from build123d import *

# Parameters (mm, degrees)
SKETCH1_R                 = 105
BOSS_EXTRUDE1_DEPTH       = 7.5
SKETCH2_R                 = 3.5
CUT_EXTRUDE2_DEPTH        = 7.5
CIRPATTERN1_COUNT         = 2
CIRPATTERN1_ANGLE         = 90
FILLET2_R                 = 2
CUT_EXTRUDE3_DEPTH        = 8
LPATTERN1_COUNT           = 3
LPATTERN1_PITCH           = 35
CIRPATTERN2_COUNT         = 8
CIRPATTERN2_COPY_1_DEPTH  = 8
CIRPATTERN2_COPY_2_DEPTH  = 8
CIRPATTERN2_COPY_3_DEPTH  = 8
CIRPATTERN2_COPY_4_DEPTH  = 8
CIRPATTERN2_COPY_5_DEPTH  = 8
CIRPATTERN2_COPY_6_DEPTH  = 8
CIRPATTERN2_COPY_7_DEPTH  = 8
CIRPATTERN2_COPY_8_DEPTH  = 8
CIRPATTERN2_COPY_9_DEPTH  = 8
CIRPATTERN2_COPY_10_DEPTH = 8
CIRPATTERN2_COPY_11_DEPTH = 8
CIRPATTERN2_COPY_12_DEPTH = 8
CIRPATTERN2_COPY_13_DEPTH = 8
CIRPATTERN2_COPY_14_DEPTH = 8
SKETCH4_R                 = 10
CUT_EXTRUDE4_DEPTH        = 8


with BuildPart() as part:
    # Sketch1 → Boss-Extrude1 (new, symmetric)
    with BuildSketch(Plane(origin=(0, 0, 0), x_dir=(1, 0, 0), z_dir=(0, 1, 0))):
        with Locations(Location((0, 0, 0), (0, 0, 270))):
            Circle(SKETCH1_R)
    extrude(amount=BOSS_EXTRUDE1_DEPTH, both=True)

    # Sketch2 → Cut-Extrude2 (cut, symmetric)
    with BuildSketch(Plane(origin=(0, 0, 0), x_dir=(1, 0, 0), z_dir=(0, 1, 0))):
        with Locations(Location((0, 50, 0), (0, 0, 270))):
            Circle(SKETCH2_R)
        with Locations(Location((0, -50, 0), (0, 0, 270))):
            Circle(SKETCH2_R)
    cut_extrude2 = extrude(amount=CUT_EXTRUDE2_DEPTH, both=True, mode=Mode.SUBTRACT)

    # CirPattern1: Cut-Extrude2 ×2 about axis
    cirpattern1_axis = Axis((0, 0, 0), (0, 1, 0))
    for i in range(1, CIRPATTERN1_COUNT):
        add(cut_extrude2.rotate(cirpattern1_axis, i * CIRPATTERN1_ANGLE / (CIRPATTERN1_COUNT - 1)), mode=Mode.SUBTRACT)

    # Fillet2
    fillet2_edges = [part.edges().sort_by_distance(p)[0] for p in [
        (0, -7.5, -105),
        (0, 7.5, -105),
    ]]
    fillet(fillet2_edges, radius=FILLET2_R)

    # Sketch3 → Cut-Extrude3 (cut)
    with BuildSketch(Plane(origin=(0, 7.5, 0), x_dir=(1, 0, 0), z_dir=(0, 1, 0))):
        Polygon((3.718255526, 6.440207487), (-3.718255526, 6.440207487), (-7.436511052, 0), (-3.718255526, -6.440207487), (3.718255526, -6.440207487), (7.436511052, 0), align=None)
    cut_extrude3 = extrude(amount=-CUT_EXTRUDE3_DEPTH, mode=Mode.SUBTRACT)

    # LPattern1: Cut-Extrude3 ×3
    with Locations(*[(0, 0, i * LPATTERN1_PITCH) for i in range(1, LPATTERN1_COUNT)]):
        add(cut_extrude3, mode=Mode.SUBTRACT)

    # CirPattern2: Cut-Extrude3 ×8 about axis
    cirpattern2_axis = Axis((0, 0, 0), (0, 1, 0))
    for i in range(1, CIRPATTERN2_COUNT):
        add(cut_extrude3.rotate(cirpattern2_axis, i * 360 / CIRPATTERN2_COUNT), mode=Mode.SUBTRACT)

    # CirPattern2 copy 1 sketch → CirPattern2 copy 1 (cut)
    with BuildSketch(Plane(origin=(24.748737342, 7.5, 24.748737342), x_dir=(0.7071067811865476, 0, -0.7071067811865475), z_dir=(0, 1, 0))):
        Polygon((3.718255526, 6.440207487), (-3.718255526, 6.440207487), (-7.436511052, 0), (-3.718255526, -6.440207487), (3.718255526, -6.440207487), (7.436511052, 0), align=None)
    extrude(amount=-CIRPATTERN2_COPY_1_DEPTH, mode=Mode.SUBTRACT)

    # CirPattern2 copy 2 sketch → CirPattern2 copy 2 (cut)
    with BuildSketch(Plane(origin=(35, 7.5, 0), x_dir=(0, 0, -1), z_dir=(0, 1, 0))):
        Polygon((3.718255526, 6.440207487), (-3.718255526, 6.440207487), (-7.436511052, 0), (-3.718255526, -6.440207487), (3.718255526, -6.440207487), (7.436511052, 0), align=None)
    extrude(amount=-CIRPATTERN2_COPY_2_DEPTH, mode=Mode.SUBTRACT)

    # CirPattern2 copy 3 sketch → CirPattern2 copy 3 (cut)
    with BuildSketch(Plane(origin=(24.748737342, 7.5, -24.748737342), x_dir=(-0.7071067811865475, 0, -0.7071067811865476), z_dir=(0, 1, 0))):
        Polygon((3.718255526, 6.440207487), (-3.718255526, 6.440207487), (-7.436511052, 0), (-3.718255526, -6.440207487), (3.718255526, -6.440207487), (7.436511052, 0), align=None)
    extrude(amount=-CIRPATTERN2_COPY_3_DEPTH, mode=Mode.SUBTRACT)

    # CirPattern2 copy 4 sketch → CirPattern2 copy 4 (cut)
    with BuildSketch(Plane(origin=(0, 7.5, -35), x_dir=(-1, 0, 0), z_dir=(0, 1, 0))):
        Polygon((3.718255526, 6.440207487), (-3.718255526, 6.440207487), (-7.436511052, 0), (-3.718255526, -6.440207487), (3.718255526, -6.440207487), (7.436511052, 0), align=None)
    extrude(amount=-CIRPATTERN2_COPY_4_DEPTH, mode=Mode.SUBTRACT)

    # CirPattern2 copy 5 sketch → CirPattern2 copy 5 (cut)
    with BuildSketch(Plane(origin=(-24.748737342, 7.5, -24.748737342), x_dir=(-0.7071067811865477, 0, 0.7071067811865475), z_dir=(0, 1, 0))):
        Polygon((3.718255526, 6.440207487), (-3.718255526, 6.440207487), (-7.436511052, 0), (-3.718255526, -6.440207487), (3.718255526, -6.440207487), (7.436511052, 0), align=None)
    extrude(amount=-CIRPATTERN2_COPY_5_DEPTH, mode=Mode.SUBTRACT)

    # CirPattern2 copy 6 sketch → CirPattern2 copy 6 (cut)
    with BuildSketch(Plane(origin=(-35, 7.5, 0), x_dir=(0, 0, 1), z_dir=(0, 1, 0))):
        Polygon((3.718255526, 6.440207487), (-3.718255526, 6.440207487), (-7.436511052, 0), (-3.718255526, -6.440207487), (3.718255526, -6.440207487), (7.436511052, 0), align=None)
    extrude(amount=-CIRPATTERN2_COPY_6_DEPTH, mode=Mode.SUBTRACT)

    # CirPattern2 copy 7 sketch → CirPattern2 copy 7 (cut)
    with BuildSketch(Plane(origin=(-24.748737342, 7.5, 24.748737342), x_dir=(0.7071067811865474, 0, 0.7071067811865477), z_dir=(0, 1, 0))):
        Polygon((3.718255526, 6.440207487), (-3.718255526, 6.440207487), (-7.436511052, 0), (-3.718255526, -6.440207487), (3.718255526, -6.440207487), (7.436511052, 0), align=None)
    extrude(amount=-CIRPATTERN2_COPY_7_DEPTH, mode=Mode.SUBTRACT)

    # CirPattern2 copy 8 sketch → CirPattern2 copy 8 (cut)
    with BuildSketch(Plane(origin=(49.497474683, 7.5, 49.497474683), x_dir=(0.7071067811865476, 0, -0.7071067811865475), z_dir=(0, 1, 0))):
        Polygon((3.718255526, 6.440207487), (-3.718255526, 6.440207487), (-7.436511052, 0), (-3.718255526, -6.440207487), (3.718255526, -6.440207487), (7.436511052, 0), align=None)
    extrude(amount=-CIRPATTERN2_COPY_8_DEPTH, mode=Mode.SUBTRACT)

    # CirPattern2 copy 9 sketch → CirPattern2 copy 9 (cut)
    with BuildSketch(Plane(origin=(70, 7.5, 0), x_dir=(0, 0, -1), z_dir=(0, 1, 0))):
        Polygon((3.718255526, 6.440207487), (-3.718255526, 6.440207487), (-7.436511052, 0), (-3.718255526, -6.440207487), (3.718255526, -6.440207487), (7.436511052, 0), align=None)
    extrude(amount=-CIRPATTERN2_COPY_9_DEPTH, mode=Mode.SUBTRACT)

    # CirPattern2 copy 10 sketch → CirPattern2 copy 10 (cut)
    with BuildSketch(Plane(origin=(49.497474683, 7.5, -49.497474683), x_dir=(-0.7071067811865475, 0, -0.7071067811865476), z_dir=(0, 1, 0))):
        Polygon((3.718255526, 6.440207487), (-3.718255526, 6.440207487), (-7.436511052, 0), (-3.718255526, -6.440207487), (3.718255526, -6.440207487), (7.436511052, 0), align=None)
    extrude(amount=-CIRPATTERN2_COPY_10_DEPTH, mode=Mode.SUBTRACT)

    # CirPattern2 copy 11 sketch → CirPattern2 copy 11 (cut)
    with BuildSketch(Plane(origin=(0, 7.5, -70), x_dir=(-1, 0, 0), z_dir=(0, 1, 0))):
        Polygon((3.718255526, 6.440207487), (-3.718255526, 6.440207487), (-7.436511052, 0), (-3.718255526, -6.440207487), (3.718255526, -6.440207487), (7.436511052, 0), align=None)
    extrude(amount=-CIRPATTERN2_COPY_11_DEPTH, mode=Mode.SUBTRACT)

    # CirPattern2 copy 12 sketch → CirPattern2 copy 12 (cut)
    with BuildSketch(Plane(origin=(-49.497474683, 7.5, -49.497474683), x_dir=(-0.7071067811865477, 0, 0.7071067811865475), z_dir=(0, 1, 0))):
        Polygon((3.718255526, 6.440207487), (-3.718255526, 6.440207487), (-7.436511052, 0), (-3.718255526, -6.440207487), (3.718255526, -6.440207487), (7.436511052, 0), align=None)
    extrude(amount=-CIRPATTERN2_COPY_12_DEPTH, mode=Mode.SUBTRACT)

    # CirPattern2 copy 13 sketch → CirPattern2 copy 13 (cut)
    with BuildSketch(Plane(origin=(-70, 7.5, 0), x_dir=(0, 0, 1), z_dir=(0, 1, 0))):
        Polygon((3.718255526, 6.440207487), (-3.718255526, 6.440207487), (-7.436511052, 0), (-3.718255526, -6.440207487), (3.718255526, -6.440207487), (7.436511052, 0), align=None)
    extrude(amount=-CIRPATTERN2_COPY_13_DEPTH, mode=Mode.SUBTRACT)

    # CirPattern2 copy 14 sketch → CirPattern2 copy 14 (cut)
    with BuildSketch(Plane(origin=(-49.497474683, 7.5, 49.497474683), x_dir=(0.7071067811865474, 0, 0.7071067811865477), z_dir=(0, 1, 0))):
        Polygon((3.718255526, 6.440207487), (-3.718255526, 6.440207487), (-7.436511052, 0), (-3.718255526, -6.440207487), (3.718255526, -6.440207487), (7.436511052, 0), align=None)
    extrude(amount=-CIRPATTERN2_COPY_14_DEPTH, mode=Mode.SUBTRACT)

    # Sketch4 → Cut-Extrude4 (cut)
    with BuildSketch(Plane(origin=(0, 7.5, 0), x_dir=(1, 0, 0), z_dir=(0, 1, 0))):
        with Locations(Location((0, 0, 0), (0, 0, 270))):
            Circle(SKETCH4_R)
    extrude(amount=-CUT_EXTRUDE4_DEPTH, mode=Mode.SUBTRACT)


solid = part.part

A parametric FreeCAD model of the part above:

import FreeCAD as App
import Part
import Sketcher
Q = App.Units.Quantity


def edges_at(feature, points):
    """Names of the edges that pass closest to the given points."""
    edges = feature.Shape.Edges
    near = lambda p: min(range(len(edges)), key=lambda i: edges[i].distToShape(Part.Vertex(*p))[0])
    return sorted({f"Edge{near(p) + 1}" for p in points})


def add_polygon(sketch, points):
    """Adds a closed chain of lines whose ends are joined by coincident constraints."""
    first, n = sketch.GeometryCount, len(points)
    for a, b in zip(points, points[1:] + points[:1]):
        sketch.addGeometry(Part.LineSegment(App.Vector(*a, 0), App.Vector(*b, 0)), False)
    for i in range(n):
        sketch.addConstraint(Sketcher.Constraint("Coincident", first + i, 2, first + (i + 1) % n, 1))

doc = App.newDocument("Part")
body = doc.addObject("PartDesign::Body", "Body")

# Sketch on XZ plane
sketch1 = doc.addObject("Sketcher::SketchObject", "Sketch")
body.addObject(sketch1)
sketch1.AttachmentSupport = (doc.XZ_Plane, [""])
sketch1.MapMode = "FlatFace"
sketch1.addGeometry(Part.Circle(App.Vector(0, 0, 0), App.Vector(0, 0, 1), 105), False)
sketch1.addConstraint(Sketcher.Constraint("Coincident", 0, 3, -1, 1))
sketch1.addConstraint(Sketcher.Constraint("Diameter", 0, Q("210 mm")))
pad1 = doc.addObject("PartDesign::Pad", "Pad")
body.addObject(pad1)
pad1.Profile = sketch1
pad1.Length = 15
pad1.Midplane = True

# Sketch on XZ plane
sketch2 = doc.addObject("Sketcher::SketchObject", "Sketch001")
body.addObject(sketch2)
sketch2.AttachmentSupport = (doc.XZ_Plane, [""])
sketch2.MapMode = "FlatFace"
sketch2.addGeometry(Part.Circle(App.Vector(0, -50, 0), App.Vector(0, 0, 1), 3.5), False)
sketch2.addGeometry(Part.Circle(App.Vector(0, 50, 0), App.Vector(0, 0, 1), 3.5), False)
sketch2.addConstraint(Sketcher.Constraint("Equal", 0, 1))
sketch2.addConstraint(Sketcher.Constraint("Symmetric", 0, 3, 1, 3, -1, 1))
sketch2.addConstraint(Sketcher.Constraint("PointOnObject", 0, 3, -2))
sketch2.addConstraint(Sketcher.Constraint("Diameter", 0, Q("7 mm")))
sketch2.addConstraint(Sketcher.Constraint("DistanceY", 0, 3, -1, 1, Q("50 mm")))
pocket1 = doc.addObject("PartDesign::Pocket", "Pocket")
body.addObject(pocket1)
pocket1.Profile = sketch2
pocket1.Length = 15
pocket1.Midplane = True
doc.recompute()

polarpattern = doc.addObject("PartDesign::PolarPattern", "PolarPattern")
body.addObject(polarpattern)
polarpattern.Originals = [pocket1]
polarpattern.Axis = (doc.Y_Axis, [""])
polarpattern.Angle = 90
polarpattern.Occurrences = 2
body.Tip = polarpattern
doc.recompute()

fillet = doc.addObject("PartDesign::Fillet", "Fillet")
body.addObject(fillet)
fillet.Base = (polarpattern, edges_at(polarpattern, [(0, -7.5, -105), (0, 7.5, -105)]))
fillet.Radius = 2

# Sketch on XZ plane
sketch3 = doc.addObject("Sketcher::SketchObject", "Sketch002")
body.addObject(sketch3)
sketch3.AttachmentSupport = (doc.XZ_Plane, [""])
sketch3.MapMode = "FlatFace"
sketch3.AttachmentOffset = App.Placement(App.Vector(0, 0, -7.5), App.Rotation())
add_polygon(sketch3, [(4, -6), (-4, -6), (-7, 0), (-4, 6), (4, 6), (7, 0)])  # lines 0-5
sketch3.addConstraint(Sketcher.Constraint("Horizontal", 0))
sketch3.addConstraint(Sketcher.Constraint("Horizontal", 3))
sketch3.addConstraint(Sketcher.Constraint("Symmetric", 0, 2, 3, 2, -1, 1))
sketch3.addConstraint(Sketcher.Constraint("Symmetric", 1, 2, 4, 2, -1, 1))
sketch3.addConstraint(Sketcher.Constraint("PointOnObject", 1, 2, -1))
sketch3.addConstraint(Sketcher.Constraint("Parallel", 2, 5))
sketch3.addConstraint(Sketcher.Constraint("Vertical", 0, 2, 2, 2))
sketch3.addConstraint(Sketcher.Constraint("Angle", 1, Q("120 deg")))
sketch3.addConstraint(Sketcher.Constraint("DistanceX", 0, 2, 0, 1, Q("7.436511 mm")))
sketch3.addConstraint(Sketcher.Constraint("Distance", 1, Q("7.436511 mm")))
pocket2 = doc.addObject("PartDesign::Pocket", "Pocket001")
body.addObject(pocket2)
pocket2.Profile = sketch3
pocket2.Length = 8
pocket2.Reversed = True
doc.recompute()

linearpattern = doc.addObject("PartDesign::LinearPattern", "LinearPattern")
body.addObject(linearpattern)
linearpattern.Originals = [pocket2]
linearpattern.Direction = (doc.Z_Axis, [""])
linearpattern.Mode = "offset"
linearpattern.Offset = 35
linearpattern.Occurrences = 3
body.Tip = linearpattern
doc.recompute()

polarpattern2 = doc.addObject("PartDesign::PolarPattern", "PolarPattern001")
body.addObject(polarpattern2)
polarpattern2.Originals = [pocket2]
polarpattern2.Axis = (doc.Y_Axis, [""])
polarpattern2.Angle = 360
polarpattern2.Occurrences = 8
body.Tip = polarpattern2

# Sketch on XZ plane
sketch4 = doc.addObject("Sketcher::SketchObject", "Sketch003")
body.addObject(sketch4)
sketch4.AttachmentSupport = (doc.XZ_Plane, [""])
sketch4.MapMode = "FlatFace"
sketch4.AttachmentOffset = App.Placement(App.Vector(0, 0, -7.5), App.Rotation())
add_polygon(sketch4, [(23, 18), (18, 23), (19, 30), (27, 32), (32, 27), (30, 19)])  # lines 0-5
sketch4.addConstraint(Sketcher.Constraint("Parallel", 0, 3))
sketch4.addConstraint(Sketcher.Constraint("Parallel", 1, 4))
sketch4.addConstraint(Sketcher.Constraint("Parallel", 2, 5))
sketch4.addConstraint(Sketcher.Constraint("Equal", 0, 1))
sketch4.addConstraint(Sketcher.Constraint("Equal", 1, 2))
sketch4.addConstraint(Sketcher.Constraint("Equal", 2, 3))
sketch4.addConstraint(Sketcher.Constraint("Angle", 0, Q("135 deg")))
sketch4.addConstraint(Sketcher.Constraint("Angle", 1, Q("75 deg")))
sketch4.addConstraint(Sketcher.Constraint("Angle", 2, Q("15 deg")))
sketch4.addConstraint(Sketcher.Constraint("Distance", 0, Q("7.436511 mm")))
sketch4.addConstraint(Sketcher.Constraint("DistanceX", -1, 1, 0, 2, Q("17.565619 mm")))
sketch4.addConstraint(Sketcher.Constraint("DistanceY", -1, 1, 3, 2, Q("26.673448 mm")))
pocket3 = doc.addObject("PartDesign::Pocket", "Pocket002")
body.addObject(pocket3)
pocket3.Profile = sketch4
pocket3.Length = 8
pocket3.Reversed = True

# Sketch on XZ plane
sketch5 = doc.addObject("Sketcher::SketchObject", "Sketch004")
body.addObject(sketch5)
sketch5.AttachmentSupport = (doc.XZ_Plane, [""])
sketch5.MapMode = "FlatFace"
sketch5.AttachmentOffset = App.Placement(App.Vector(0, 0, -7.5), App.Rotation())
add_polygon(sketch5, [(29, -4), (29, 4), (35, 7), (41, 4), (41, -4), (35, -7)])  # lines 0-5
sketch5.addConstraint(Sketcher.Constraint("Vertical", 0))
sketch5.addConstraint(Sketcher.Constraint("Vertical", 3))
sketch5.addConstraint(Sketcher.Constraint("Symmetric", 1, 2, 4, 2, -1))
sketch5.addConstraint(Sketcher.Constraint("Parallel", 1, 4))
sketch5.addConstraint(Sketcher.Constraint("Parallel", 2, 5))
sketch5.addConstraint(Sketcher.Constraint("Horizontal", 0, 2, 2, 2))
sketch5.addConstraint(Sketcher.Constraint("Horizontal", 3, 2, 5, 2))
sketch5.addConstraint(Sketcher.Constraint("Angle", 1, Q("30 deg")))
sketch5.addConstraint(Sketcher.Constraint("DistanceX", -1, 1, 1, 2, Q("35 mm")))
sketch5.addConstraint(Sketcher.Constraint("DistanceY", 0, 1, 0, 2, Q("7.436511 mm")))
sketch5.addConstraint(Sketcher.Constraint("Distance", 1, Q("7.436511 mm")))
pocket4 = doc.addObject("PartDesign::Pocket", "Pocket003")
body.addObject(pocket4)
pocket4.Profile = sketch5
pocket4.Length = 8
pocket4.Reversed = True

# Sketch on XZ plane
sketch6 = doc.addObject("Sketcher::SketchObject", "Sketch005")
body.addObject(sketch6)
sketch6.AttachmentSupport = (doc.XZ_Plane, [""])
sketch6.MapMode = "FlatFace"
sketch6.AttachmentOffset = App.Placement(App.Vector(0, 0, -7.5), App.Rotation())
add_polygon(sketch6, [(18, -23), (23, -18), (30, -19), (32, -27), (27, -32), (19, -30)])  # lines 0-5
sketch6.addConstraint(Sketcher.Constraint("Parallel", 0, 3))
sketch6.addConstraint(Sketcher.Constraint("Parallel", 1, 4))
sketch6.addConstraint(Sketcher.Constraint("Parallel", 2, 5))
sketch6.addConstraint(Sketcher.Constraint("Equal", 0, 1))
sketch6.addConstraint(Sketcher.Constraint("Equal", 1, 2))
sketch6.addConstraint(Sketcher.Constraint("Equal", 2, 3))
sketch6.addConstraint(Sketcher.Constraint("Angle", 0, Q("45 deg")))
sketch6.addConstraint(Sketcher.Constraint("Angle", 1, Q("-15 deg")))
sketch6.addConstraint(Sketcher.Constraint("Angle", 2, Q("-75 deg")))
sketch6.addConstraint(Sketcher.Constraint("Distance", 0, Q("7.436511 mm")))
sketch6.addConstraint(Sketcher.Constraint("DistanceY", 0, 2, -1, 1, Q("17.565619 mm")))
sketch6.addConstraint(Sketcher.Constraint("DistanceX", -1, 1, 3, 2, Q("26.673448 mm")))
pocket5 = doc.addObject("PartDesign::Pocket", "Pocket004")
body.addObject(pocket5)
pocket5.Profile = sketch6
pocket5.Length = 8
pocket5.Reversed = True

# Sketch on XZ plane
sketch7 = doc.addObject("Sketcher::SketchObject", "Sketch006")
body.addObject(sketch7)
sketch7.AttachmentSupport = (doc.XZ_Plane, [""])
sketch7.MapMode = "FlatFace"
sketch7.AttachmentOffset = App.Placement(App.Vector(0, 0, -7.5), App.Rotation())
add_polygon(sketch7, [(-4, -29), (4, -29), (7, -35), (4, -41), (-4, -41), (-7, -35)])  # lines 0-5
sketch7.addConstraint(Sketcher.Constraint("Horizontal", 0))
sketch7.addConstraint(Sketcher.Constraint("Horizontal", 3))
sketch7.addConstraint(Sketcher.Constraint("Symmetric", 1, 2, 4, 2, -2))
sketch7.addConstraint(Sketcher.Constraint("Parallel", 1, 4))
sketch7.addConstraint(Sketcher.Constraint("Parallel", 2, 5))
sketch7.addConstraint(Sketcher.Constraint("Vertical", 0, 2, 2, 2))
sketch7.addConstraint(Sketcher.Constraint("Vertical", 3, 2, 5, 2))
sketch7.addConstraint(Sketcher.Constraint("Angle", 1, Q("-60 deg")))
sketch7.addConstraint(Sketcher.Constraint("DistanceY", 1, 2, -1, 1, Q("35 mm")))
sketch7.addConstraint(Sketcher.Constraint("DistanceX", 0, 1, 0, 2, Q("7.436511 mm")))
sketch7.addConstraint(Sketcher.Constraint("Distance", 1, Q("7.436511 mm")))
pocket6 = doc.addObject("PartDesign::Pocket", "Pocket005")
body.addObject(pocket6)
pocket6.Profile = sketch7
pocket6.Length = 8
pocket6.Reversed = True

# Sketch on XZ plane
sketch8 = doc.addObject("Sketcher::SketchObject", "Sketch007")
body.addObject(sketch8)
sketch8.AttachmentSupport = (doc.XZ_Plane, [""])
sketch8.MapMode = "FlatFace"
sketch8.AttachmentOffset = App.Placement(App.Vector(0, 0, -7.5), App.Rotation())
add_polygon(sketch8, [(-23, -18), (-18, -23), (-19, -30), (-27, -32), (-32, -27), (-30, -19)])  # lines 0-5
sketch8.addConstraint(Sketcher.Constraint("Parallel", 0, 3))
sketch8.addConstraint(Sketcher.Constraint("Parallel", 1, 4))
sketch8.addConstraint(Sketcher.Constraint("Parallel", 2, 5))
sketch8.addConstraint(Sketcher.Constraint("Equal", 0, 1))
sketch8.addConstraint(Sketcher.Constraint("Equal", 1, 2))
sketch8.addConstraint(Sketcher.Constraint("Equal", 2, 3))
sketch8.addConstraint(Sketcher.Constraint("Angle", 0, Q("-45 deg")))
sketch8.addConstraint(Sketcher.Constraint("Angle", 1, Q("-105 deg")))
sketch8.addConstraint(Sketcher.Constraint("Angle", 2, Q("-165 deg")))
sketch8.addConstraint(Sketcher.Constraint("Distance", 0, Q("7.436511 mm")))
sketch8.addConstraint(Sketcher.Constraint("DistanceX", 0, 2, -1, 1, Q("17.565619 mm")))
sketch8.addConstraint(Sketcher.Constraint("DistanceY", 3, 2, -1, 1, Q("26.673448 mm")))
pocket7 = doc.addObject("PartDesign::Pocket", "Pocket006")
body.addObject(pocket7)
pocket7.Profile = sketch8
pocket7.Length = 8
pocket7.Reversed = True

# Sketch on XZ plane
sketch9 = doc.addObject("Sketcher::SketchObject", "Sketch008")
body.addObject(sketch9)
sketch9.AttachmentSupport = (doc.XZ_Plane, [""])
sketch9.MapMode = "FlatFace"
sketch9.AttachmentOffset = App.Placement(App.Vector(0, 0, -7.5), App.Rotation())
add_polygon(sketch9, [(-29, 4), (-29, -4), (-35, -7), (-41, -4), (-41, 4), (-35, 7)])  # lines 0-5
sketch9.addConstraint(Sketcher.Constraint("Vertical", 0))
sketch9.addConstraint(Sketcher.Constraint("Vertical", 3))
sketch9.addConstraint(Sketcher.Constraint("Symmetric", 1, 2, 4, 2, -1))
sketch9.addConstraint(Sketcher.Constraint("Parallel", 1, 4))
sketch9.addConstraint(Sketcher.Constraint("Parallel", 2, 5))
sketch9.addConstraint(Sketcher.Constraint("Horizontal", 0, 2, 2, 2))
sketch9.addConstraint(Sketcher.Constraint("Horizontal", 3, 2, 5, 2))
sketch9.addConstraint(Sketcher.Constraint("Angle", 1, Q("-150 deg")))
sketch9.addConstraint(Sketcher.Constraint("DistanceX", 1, 2, -1, 1, Q("35 mm")))
sketch9.addConstraint(Sketcher.Constraint("DistanceY", 0, 2, 0, 1, Q("7.436511 mm")))
sketch9.addConstraint(Sketcher.Constraint("Distance", 1, Q("7.436511 mm")))
pocket8 = doc.addObject("PartDesign::Pocket", "Pocket007")
body.addObject(pocket8)
pocket8.Profile = sketch9
pocket8.Length = 8
pocket8.Reversed = True

# Sketch on XZ plane
sketch10 = doc.addObject("Sketcher::SketchObject", "Sketch009")
body.addObject(sketch10)
sketch10.AttachmentSupport = (doc.XZ_Plane, [""])
sketch10.MapMode = "FlatFace"
sketch10.AttachmentOffset = App.Placement(App.Vector(0, 0, -7.5), App.Rotation())
add_polygon(sketch10, [(-18, 23), (-23, 18), (-30, 19), (-32, 27), (-27, 32), (-19, 30)])  # lines 0-5
sketch10.addConstraint(Sketcher.Constraint("Parallel", 0, 3))
sketch10.addConstraint(Sketcher.Constraint("Parallel", 1, 4))
sketch10.addConstraint(Sketcher.Constraint("Parallel", 2, 5))
sketch10.addConstraint(Sketcher.Constraint("Equal", 0, 1))
sketch10.addConstraint(Sketcher.Constraint("Equal", 1, 2))
sketch10.addConstraint(Sketcher.Constraint("Equal", 2, 3))
sketch10.addConstraint(Sketcher.Constraint("Angle", 0, Q("-135 deg")))
sketch10.addConstraint(Sketcher.Constraint("Angle", 1, Q("165 deg")))
sketch10.addConstraint(Sketcher.Constraint("Angle", 2, Q("105 deg")))
sketch10.addConstraint(Sketcher.Constraint("Distance", 0, Q("7.436511 mm")))
sketch10.addConstraint(Sketcher.Constraint("DistanceY", -1, 1, 0, 2, Q("17.565619 mm")))
sketch10.addConstraint(Sketcher.Constraint("DistanceX", 3, 2, -1, 1, Q("26.673448 mm")))
pocket9 = doc.addObject("PartDesign::Pocket", "Pocket008")
body.addObject(pocket9)
pocket9.Profile = sketch10
pocket9.Length = 8
pocket9.Reversed = True

# Sketch on XZ plane
sketch11 = doc.addObject("Sketcher::SketchObject", "Sketch010")
body.addObject(sketch11)
sketch11.AttachmentSupport = (doc.XZ_Plane, [""])
sketch11.MapMode = "FlatFace"
sketch11.AttachmentOffset = App.Placement(App.Vector(0, 0, -7.5), App.Rotation())
add_polygon(sketch11, [(48, 42), (42, 48), (44, 55), (51, 57), (57, 51), (55, 44)])  # lines 0-5
sketch11.addConstraint(Sketcher.Constraint("Parallel", 0, 3))
sketch11.addConstraint(Sketcher.Constraint("Parallel", 1, 4))
sketch11.addConstraint(Sketcher.Constraint("Parallel", 2, 5))
sketch11.addConstraint(Sketcher.Constraint("Equal", 0, 1))
sketch11.addConstraint(Sketcher.Constraint("Equal", 1, 2))
sketch11.addConstraint(Sketcher.Constraint("Equal", 2, 3))
sketch11.addConstraint(Sketcher.Constraint("Angle", 0, Q("135 deg")))
sketch11.addConstraint(Sketcher.Constraint("Angle", 1, Q("75 deg")))
sketch11.addConstraint(Sketcher.Constraint("Angle", 2, Q("15 deg")))
sketch11.addConstraint(Sketcher.Constraint("Distance", 0, Q("7.436511 mm")))
sketch11.addConstraint(Sketcher.Constraint("DistanceX", -1, 1, 0, 2, Q("42.314357 mm")))
sketch11.addConstraint(Sketcher.Constraint("DistanceY", -1, 1, 0, 2, Q("47.572764 mm")))
pocket10 = doc.addObject("PartDesign::Pocket", "Pocket009")
body.addObject(pocket10)
pocket10.Profile = sketch11
pocket10.Length = 8
pocket10.Reversed = True

# Sketch on XZ plane
sketch12 = doc.addObject("Sketcher::SketchObject", "Sketch011")
body.addObject(sketch12)
sketch12.AttachmentSupport = (doc.XZ_Plane, [""])
sketch12.MapMode = "FlatFace"
sketch12.AttachmentOffset = App.Placement(App.Vector(0, 0, -7.5), App.Rotation())
add_polygon(sketch12, [(64, -4), (64, 4), (70, 7), (76, 4), (76, -4), (70, -7)])  # lines 0-5
sketch12.addConstraint(Sketcher.Constraint("Vertical", 0))
sketch12.addConstraint(Sketcher.Constraint("Vertical", 3))
sketch12.addConstraint(Sketcher.Constraint("Symmetric", 1, 2, 4, 2, -1))
sketch12.addConstraint(Sketcher.Constraint("Parallel", 1, 4))
sketch12.addConstraint(Sketcher.Constraint("Parallel", 2, 5))
sketch12.addConstraint(Sketcher.Constraint("Horizontal", 0, 2, 2, 2))
sketch12.addConstraint(Sketcher.Constraint("Horizontal", 3, 2, 5, 2))
sketch12.addConstraint(Sketcher.Constraint("Angle", 1, Q("30 deg")))
sketch12.addConstraint(Sketcher.Constraint("DistanceX", -1, 1, 1, 2, Q("70 mm")))
sketch12.addConstraint(Sketcher.Constraint("DistanceY", 0, 1, 0, 2, Q("7.436511 mm")))
sketch12.addConstraint(Sketcher.Constraint("Distance", 1, Q("7.436511 mm")))
pocket11 = doc.addObject("PartDesign::Pocket", "Pocket010")
body.addObject(pocket11)
pocket11.Profile = sketch12
pocket11.Length = 8
pocket11.Reversed = True

# Sketch on XZ plane
sketch13 = doc.addObject("Sketcher::SketchObject", "Sketch012")
body.addObject(sketch13)
sketch13.AttachmentSupport = (doc.XZ_Plane, [""])
sketch13.MapMode = "FlatFace"
sketch13.AttachmentOffset = App.Placement(App.Vector(0, 0, -7.5), App.Rotation())
add_polygon(sketch13, [(42, -48), (48, -42), (55, -44), (57, -51), (51, -57), (44, -55)])  # lines 0-5
sketch13.addConstraint(Sketcher.Constraint("Parallel", 0, 3))
sketch13.addConstraint(Sketcher.Constraint("Parallel", 1, 4))
sketch13.addConstraint(Sketcher.Constraint("Parallel", 2, 5))
sketch13.addConstraint(Sketcher.Constraint("Equal", 0, 1))
sketch13.addConstraint(Sketcher.Constraint("Equal", 1, 2))
sketch13.addConstraint(Sketcher.Constraint("Equal", 2, 3))
sketch13.addConstraint(Sketcher.Constraint("Angle", 0, Q("45 deg")))
sketch13.addConstraint(Sketcher.Constraint("Angle", 1, Q("-15 deg")))
sketch13.addConstraint(Sketcher.Constraint("Angle", 2, Q("-75 deg")))
sketch13.addConstraint(Sketcher.Constraint("Distance", 0, Q("7.436511 mm")))
sketch13.addConstraint(Sketcher.Constraint("DistanceX", -1, 1, 0, 2, Q("47.572764 mm")))
sketch13.addConstraint(Sketcher.Constraint("DistanceY", 0, 2, -1, 1, Q("42.314357 mm")))
pocket12 = doc.addObject("PartDesign::Pocket", "Pocket011")
body.addObject(pocket12)
pocket12.Profile = sketch13
pocket12.Length = 8
pocket12.Reversed = True

# Sketch on XZ plane
sketch14 = doc.addObject("Sketcher::SketchObject", "Sketch013")
body.addObject(sketch14)
sketch14.AttachmentSupport = (doc.XZ_Plane, [""])
sketch14.MapMode = "FlatFace"
sketch14.AttachmentOffset = App.Placement(App.Vector(0, 0, -7.5), App.Rotation())
add_polygon(sketch14, [(-4, -64), (4, -64), (7, -70), (4, -76), (-4, -76), (-7, -70)])  # lines 0-5
sketch14.addConstraint(Sketcher.Constraint("Horizontal", 0))
sketch14.addConstraint(Sketcher.Constraint("Horizontal", 3))
sketch14.addConstraint(Sketcher.Constraint("Symmetric", 1, 2, 4, 2, -2))
sketch14.addConstraint(Sketcher.Constraint("Parallel", 1, 4))
sketch14.addConstraint(Sketcher.Constraint("Parallel", 2, 5))
sketch14.addConstraint(Sketcher.Constraint("Vertical", 0, 2, 2, 2))
sketch14.addConstraint(Sketcher.Constraint("Vertical", 3, 2, 5, 2))
sketch14.addConstraint(Sketcher.Constraint("Angle", 1, Q("-60 deg")))
sketch14.addConstraint(Sketcher.Constraint("DistanceY", 1, 2, -1, 1, Q("70 mm")))
sketch14.addConstraint(Sketcher.Constraint("DistanceX", 0, 1, 0, 2, Q("7.436511 mm")))
sketch14.addConstraint(Sketcher.Constraint("Distance", 1, Q("7.436511 mm")))
pocket13 = doc.addObject("PartDesign::Pocket", "Pocket012")
body.addObject(pocket13)
pocket13.Profile = sketch14
pocket13.Length = 8
pocket13.Reversed = True

# Sketch on XZ plane
sketch15 = doc.addObject("Sketcher::SketchObject", "Sketch014")
body.addObject(sketch15)
sketch15.AttachmentSupport = (doc.XZ_Plane, [""])
sketch15.MapMode = "FlatFace"
sketch15.AttachmentOffset = App.Placement(App.Vector(0, 0, -7.5), App.Rotation())
add_polygon(sketch15, [(-48, -42), (-42, -48), (-44, -55), (-51, -57), (-57, -51), (-55, -44)])  # lines 0-5
sketch15.addConstraint(Sketcher.Constraint("Parallel", 0, 3))
sketch15.addConstraint(Sketcher.Constraint("Parallel", 1, 4))
sketch15.addConstraint(Sketcher.Constraint("Parallel", 2, 5))
sketch15.addConstraint(Sketcher.Constraint("Equal", 0, 1))
sketch15.addConstraint(Sketcher.Constraint("Equal", 1, 2))
sketch15.addConstraint(Sketcher.Constraint("Equal", 2, 3))
sketch15.addConstraint(Sketcher.Constraint("Angle", 0, Q("-45 deg")))
sketch15.addConstraint(Sketcher.Constraint("Angle", 1, Q("-105 deg")))
sketch15.addConstraint(Sketcher.Constraint("Angle", 2, Q("-165 deg")))
sketch15.addConstraint(Sketcher.Constraint("Distance", 0, Q("7.436511 mm")))
sketch15.addConstraint(Sketcher.Constraint("DistanceX", 0, 2, -1, 1, Q("42.314357 mm")))
sketch15.addConstraint(Sketcher.Constraint("DistanceY", 0, 2, -1, 1, Q("47.572764 mm")))
pocket14 = doc.addObject("PartDesign::Pocket", "Pocket013")
body.addObject(pocket14)
pocket14.Profile = sketch15
pocket14.Length = 8
pocket14.Reversed = True

# Sketch on XZ plane
sketch16 = doc.addObject("Sketcher::SketchObject", "Sketch015")
body.addObject(sketch16)
sketch16.AttachmentSupport = (doc.XZ_Plane, [""])
sketch16.MapMode = "FlatFace"
sketch16.AttachmentOffset = App.Placement(App.Vector(0, 0, -7.5), App.Rotation())
add_polygon(sketch16, [(-64, 4), (-64, -4), (-70, -7), (-76, -4), (-76, 4), (-70, 7)])  # lines 0-5
sketch16.addConstraint(Sketcher.Constraint("Vertical", 0))
sketch16.addConstraint(Sketcher.Constraint("Vertical", 3))
sketch16.addConstraint(Sketcher.Constraint("Symmetric", 1, 2, 4, 2, -1))
sketch16.addConstraint(Sketcher.Constraint("Parallel", 1, 4))
sketch16.addConstraint(Sketcher.Constraint("Parallel", 2, 5))
sketch16.addConstraint(Sketcher.Constraint("Horizontal", 0, 2, 2, 2))
sketch16.addConstraint(Sketcher.Constraint("Horizontal", 3, 2, 5, 2))
sketch16.addConstraint(Sketcher.Constraint("Angle", 1, Q("-150 deg")))
sketch16.addConstraint(Sketcher.Constraint("DistanceX", 1, 2, -1, 1, Q("70 mm")))
sketch16.addConstraint(Sketcher.Constraint("DistanceY", 0, 2, 0, 1, Q("7.436511 mm")))
sketch16.addConstraint(Sketcher.Constraint("Distance", 1, Q("7.436511 mm")))
pocket15 = doc.addObject("PartDesign::Pocket", "Pocket014")
body.addObject(pocket15)
pocket15.Profile = sketch16
pocket15.Length = 8
pocket15.Reversed = True

# Sketch on XZ plane
sketch17 = doc.addObject("Sketcher::SketchObject", "Sketch016")
body.addObject(sketch17)
sketch17.AttachmentSupport = (doc.XZ_Plane, [""])
sketch17.MapMode = "FlatFace"
sketch17.AttachmentOffset = App.Placement(App.Vector(0, 0, -7.5), App.Rotation())
add_polygon(sketch17, [(-42, 48), (-48, 42), (-55, 44), (-57, 51), (-51, 57), (-44, 55)])  # lines 0-5
sketch17.addConstraint(Sketcher.Constraint("Parallel", 0, 3))
sketch17.addConstraint(Sketcher.Constraint("Parallel", 1, 4))
sketch17.addConstraint(Sketcher.Constraint("Parallel", 2, 5))
sketch17.addConstraint(Sketcher.Constraint("Equal", 0, 1))
sketch17.addConstraint(Sketcher.Constraint("Equal", 1, 2))
sketch17.addConstraint(Sketcher.Constraint("Equal", 2, 3))
sketch17.addConstraint(Sketcher.Constraint("Angle", 0, Q("-135 deg")))
sketch17.addConstraint(Sketcher.Constraint("Angle", 1, Q("165 deg")))
sketch17.addConstraint(Sketcher.Constraint("Angle", 2, Q("105 deg")))
sketch17.addConstraint(Sketcher.Constraint("Distance", 0, Q("7.436511 mm")))
sketch17.addConstraint(Sketcher.Constraint("DistanceX", 0, 2, -1, 1, Q("47.572764 mm")))
sketch17.addConstraint(Sketcher.Constraint("DistanceY", -1, 1, 0, 2, Q("42.314357 mm")))
pocket16 = doc.addObject("PartDesign::Pocket", "Pocket015")
body.addObject(pocket16)
pocket16.Profile = sketch17
pocket16.Length = 8
pocket16.Reversed = True

# Sketch on XZ plane
sketch18 = doc.addObject("Sketcher::SketchObject", "Sketch017")
body.addObject(sketch18)
sketch18.AttachmentSupport = (doc.XZ_Plane, [""])
sketch18.MapMode = "FlatFace"
sketch18.AttachmentOffset = App.Placement(App.Vector(0, 0, -7.5), App.Rotation())
sketch18.addGeometry(Part.Circle(App.Vector(0, 0, 0), App.Vector(0, 0, 1), 10), False)
sketch18.addConstraint(Sketcher.Constraint("Coincident", 0, 3, -1, 1))
sketch18.addConstraint(Sketcher.Constraint("Diameter", 0, Q("20 mm")))
pocket17 = doc.addObject("PartDesign::Pocket", "Pocket016")
body.addObject(pocket17)
pocket17.Profile = sketch18
pocket17.Length = 8
pocket17.Reversed = True

doc.recompute()
